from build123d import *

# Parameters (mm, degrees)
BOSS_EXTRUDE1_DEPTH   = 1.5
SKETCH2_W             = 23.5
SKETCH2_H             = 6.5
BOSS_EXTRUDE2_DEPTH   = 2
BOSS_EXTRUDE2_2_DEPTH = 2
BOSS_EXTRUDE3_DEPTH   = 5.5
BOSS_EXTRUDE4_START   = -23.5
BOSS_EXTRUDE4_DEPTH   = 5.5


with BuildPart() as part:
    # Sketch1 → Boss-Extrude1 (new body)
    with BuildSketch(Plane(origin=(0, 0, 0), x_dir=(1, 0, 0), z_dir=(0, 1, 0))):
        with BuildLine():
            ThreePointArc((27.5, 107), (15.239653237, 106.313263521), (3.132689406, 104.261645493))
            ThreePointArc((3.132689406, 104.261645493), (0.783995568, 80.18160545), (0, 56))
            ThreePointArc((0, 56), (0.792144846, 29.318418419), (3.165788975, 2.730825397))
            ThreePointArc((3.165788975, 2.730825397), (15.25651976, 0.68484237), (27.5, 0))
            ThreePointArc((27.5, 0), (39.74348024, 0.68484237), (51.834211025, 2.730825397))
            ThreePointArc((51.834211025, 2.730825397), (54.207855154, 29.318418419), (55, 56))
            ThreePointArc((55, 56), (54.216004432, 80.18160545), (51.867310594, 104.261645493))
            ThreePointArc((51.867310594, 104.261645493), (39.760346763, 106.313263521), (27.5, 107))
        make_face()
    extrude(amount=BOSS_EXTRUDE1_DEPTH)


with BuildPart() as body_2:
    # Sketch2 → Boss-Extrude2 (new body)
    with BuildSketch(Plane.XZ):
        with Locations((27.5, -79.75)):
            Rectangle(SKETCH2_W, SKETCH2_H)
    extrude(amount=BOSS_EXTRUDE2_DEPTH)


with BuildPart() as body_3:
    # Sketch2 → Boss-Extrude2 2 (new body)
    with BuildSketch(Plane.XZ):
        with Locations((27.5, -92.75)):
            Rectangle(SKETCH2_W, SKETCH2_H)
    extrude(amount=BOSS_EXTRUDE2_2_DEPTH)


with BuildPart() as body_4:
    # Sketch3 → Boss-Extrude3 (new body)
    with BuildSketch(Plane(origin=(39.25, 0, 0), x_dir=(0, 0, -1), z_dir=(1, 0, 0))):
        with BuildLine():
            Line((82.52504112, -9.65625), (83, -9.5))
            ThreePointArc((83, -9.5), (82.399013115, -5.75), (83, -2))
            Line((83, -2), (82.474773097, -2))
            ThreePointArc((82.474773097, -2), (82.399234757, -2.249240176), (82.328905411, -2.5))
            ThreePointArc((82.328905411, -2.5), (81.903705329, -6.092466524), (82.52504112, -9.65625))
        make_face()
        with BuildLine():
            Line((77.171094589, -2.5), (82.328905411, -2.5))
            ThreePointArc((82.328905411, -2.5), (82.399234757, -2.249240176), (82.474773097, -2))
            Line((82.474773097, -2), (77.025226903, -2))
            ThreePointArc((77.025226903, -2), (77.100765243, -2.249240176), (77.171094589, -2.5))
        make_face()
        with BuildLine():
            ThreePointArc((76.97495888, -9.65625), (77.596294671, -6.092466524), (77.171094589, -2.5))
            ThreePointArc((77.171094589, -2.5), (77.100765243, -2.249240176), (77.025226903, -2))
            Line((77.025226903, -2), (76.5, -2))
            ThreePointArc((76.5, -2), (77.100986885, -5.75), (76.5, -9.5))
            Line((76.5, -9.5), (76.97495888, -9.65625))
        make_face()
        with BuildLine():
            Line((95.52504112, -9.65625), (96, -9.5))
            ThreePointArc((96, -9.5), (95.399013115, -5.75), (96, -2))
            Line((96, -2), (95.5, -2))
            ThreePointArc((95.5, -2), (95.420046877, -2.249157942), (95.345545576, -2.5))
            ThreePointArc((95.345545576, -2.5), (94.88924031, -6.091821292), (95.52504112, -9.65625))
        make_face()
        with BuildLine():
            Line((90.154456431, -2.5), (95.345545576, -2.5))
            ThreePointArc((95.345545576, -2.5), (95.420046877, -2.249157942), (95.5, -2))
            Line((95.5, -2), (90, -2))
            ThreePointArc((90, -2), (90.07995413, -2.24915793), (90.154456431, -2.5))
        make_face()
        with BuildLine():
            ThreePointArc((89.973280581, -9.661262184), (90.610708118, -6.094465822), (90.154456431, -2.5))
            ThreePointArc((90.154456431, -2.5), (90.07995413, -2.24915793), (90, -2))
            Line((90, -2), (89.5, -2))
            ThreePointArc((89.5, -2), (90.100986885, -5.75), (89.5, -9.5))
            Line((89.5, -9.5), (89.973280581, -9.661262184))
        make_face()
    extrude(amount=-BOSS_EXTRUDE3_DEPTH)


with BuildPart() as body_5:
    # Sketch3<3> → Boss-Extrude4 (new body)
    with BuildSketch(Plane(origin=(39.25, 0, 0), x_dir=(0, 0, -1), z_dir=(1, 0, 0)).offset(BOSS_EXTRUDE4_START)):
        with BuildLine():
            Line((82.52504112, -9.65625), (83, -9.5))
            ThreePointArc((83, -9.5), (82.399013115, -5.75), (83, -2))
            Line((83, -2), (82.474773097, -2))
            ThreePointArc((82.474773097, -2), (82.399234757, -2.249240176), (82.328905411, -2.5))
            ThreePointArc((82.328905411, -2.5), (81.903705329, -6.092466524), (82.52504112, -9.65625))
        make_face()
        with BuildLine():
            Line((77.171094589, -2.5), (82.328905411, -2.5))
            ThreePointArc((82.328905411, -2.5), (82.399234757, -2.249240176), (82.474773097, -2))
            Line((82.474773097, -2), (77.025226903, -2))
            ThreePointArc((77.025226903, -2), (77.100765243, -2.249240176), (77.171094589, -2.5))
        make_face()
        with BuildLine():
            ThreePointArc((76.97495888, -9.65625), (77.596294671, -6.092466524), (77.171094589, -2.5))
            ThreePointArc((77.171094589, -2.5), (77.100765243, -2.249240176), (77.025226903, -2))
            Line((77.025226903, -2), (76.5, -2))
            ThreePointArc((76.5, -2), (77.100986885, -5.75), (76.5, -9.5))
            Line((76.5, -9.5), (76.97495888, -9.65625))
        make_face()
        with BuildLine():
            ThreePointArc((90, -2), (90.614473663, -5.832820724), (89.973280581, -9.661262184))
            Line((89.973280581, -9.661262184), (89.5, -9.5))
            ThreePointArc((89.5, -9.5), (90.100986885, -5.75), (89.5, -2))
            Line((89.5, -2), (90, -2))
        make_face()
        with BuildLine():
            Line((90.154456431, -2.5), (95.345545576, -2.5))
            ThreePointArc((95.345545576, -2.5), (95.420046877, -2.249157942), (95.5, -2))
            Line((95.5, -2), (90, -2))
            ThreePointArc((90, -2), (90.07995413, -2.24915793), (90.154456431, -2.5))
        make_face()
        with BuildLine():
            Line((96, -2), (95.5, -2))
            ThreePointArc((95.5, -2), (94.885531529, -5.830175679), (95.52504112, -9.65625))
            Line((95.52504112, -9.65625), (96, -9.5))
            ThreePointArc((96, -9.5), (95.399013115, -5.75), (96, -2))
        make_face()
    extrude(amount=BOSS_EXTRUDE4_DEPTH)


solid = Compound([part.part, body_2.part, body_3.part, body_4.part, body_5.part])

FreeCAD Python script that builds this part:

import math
import FreeCAD as App
import Part
import Sketcher
from FreeCAD import Vector
Q = App.Units.Quantity


def add_polygon(sketch, points):
    """Adds a closed chain of lines whose ends are joined by coincident constraints."""
    first, n = sketch.GeometryCount, len(points)
    for a, b in zip(points, points[1:] + points[:1]):
        sketch.addGeometry(Part.LineSegment(App.Vector(*a, 0), App.Vector(*b, 0)), False)
    for i in range(n):
        sketch.addConstraint(Sketcher.Constraint("Coincident", first + i, 2, first + (i + 1) % n, 1))

doc = App.newDocument("Part")
params = doc.addObject("Spreadsheet::Sheet", "Params")
for row, (alias, value) in enumerate([
    ("sketch1_radius", "449.75 mm"),
    ("pad1_length", "1.5 mm"),
    ("sketch2_width", "23.5 mm"),
    ("sketch2_height", "6.5 mm"),
    ("pad2_length", "2 mm"),
    ("sketch3_width", "23.5 mm"),
    ("sketch3_height", "6.5 mm"),
    ("pad3_length", "2 mm"),
    ("sketch4_radius", "12 mm"),
    ("sketch4_radius2", "12.5 mm"),
    ("sketch4_height", "6.5 mm"),
    ("pad4_length", "5.5 mm"),
    ("sketch5_radius", "12 mm"),
    ("sketch5_radius2", "12.5 mm"),
    ("sketch5_height", "6.5 mm"),
    ("pad5_length", "5.5 mm"),
], start=1):
    params.set(f"A{row}", alias)
    params.set(f"B{row}", "=" + value)
    params.setAlias(f"B{row}", alias)

body = doc.addObject("PartDesign::Body", "Body")

# Sketch on XZ plane
sketch1 = body.newObject("Sketcher::SketchObject", "Sketch")
sketch1.AttachmentSupport = (doc.getObject("XZ_Plane"), [""])
sketch1.MapMode = "FlatFace"
sketch1.addGeometry([
    Part.ArcOfCircle(Part.Circle(Vector(28, 3, 0), Vector(0, 0, 1), 110), math.radians(-102.82), math.radians(-90)),  # 0
    Part.ArcOfCircle(Part.Circle(Vector(373, -56, 0), Vector(0, 0, 1), 373), math.radians(180), math.radians(187.43)),  # 1
    Part.ArcOfCircle(Part.Circle(Vector(450, -56, 0), Vector(0, 0, 1), 450), math.radians(173.2), math.radians(180)),  # 2
    Part.ArcOfCircle(Part.Circle(Vector(28, -110, 0), Vector(0, 0, 1), 110), math.radians(90), math.radians(102.81)),  # 3
    Part.ArcOfCircle(Part.Circle(Vector(27, -110, 0), Vector(0, 0, 1), 110), math.radians(77.19), math.radians(90)),  # 4
    Part.ArcOfCircle(Part.Circle(Vector(-395, -56, 0), Vector(0, 0, 1), 450), math.radians(0), math.radians(6.8)),  # 5
    Part.ArcOfCircle(Part.Circle(Vector(-318, -56, 0), Vector(0, 0, 1), 373), math.radians(-7.43), math.radians(0)),  # 6
    Part.ArcOfCircle(Part.Circle(Vector(28, 3, 0), Vector(0, 0, 1), 110), math.radians(-90), math.radians(-77.18)),  # 7
], False)
sketch1.addConstraint([
    Sketcher.Constraint("Coincident", 0, 1, 1, 2),
    Sketcher.Constraint("Tangent", 1, 1, 2, 2),
    Sketcher.Constraint("Coincident", 2, 1, 3, 2),
    Sketcher.Constraint("Tangent", 3, 1, 4, 2),
    Sketcher.Constraint("Coincident", 4, 1, 5, 2),
    Sketcher.Constraint("Tangent", 5, 1, 6, 2),
    Sketcher.Constraint("Coincident", 6, 1, 7, 2),
    Sketcher.Constraint("Tangent", 7, 1, 0, 2),
    Sketcher.Constraint("Equal", 0, 3),
    Sketcher.Constraint("Equal", 3, 4),
    Sketcher.Constraint("Equal", 2, 5),
    Sketcher.Constraint("Equal", 1, 6),
    Sketcher.Constraint("Equal", 4, 7),
    Sketcher.Constraint("PointOnObject", 1, 1, -2),
    Sketcher.Constraint("PointOnObject", 3, 1, -1),
    Sketcher.Constraint("Horizontal", 1, 3, 2, 3),
    Sketcher.Constraint("Horizontal", 2, 3, 5, 3),
    Sketcher.Constraint("Horizontal", 5, 3, 6, 3),
    Sketcher.Constraint("Vertical", 0, 3, 3, 3),
    Sketcher.Constraint("Vertical", 7, 3, 3, 1),
    Sketcher.Constraint("Vertical", 3, 1, 7, 1),
    Sketcher.Constraint("Radius", 2, Q("449.75 mm")),
    Sketcher.Constraint("DistanceY", 1, 3, -1, 1, Q("56 mm")),
    Sketcher.Constraint("DistanceX", -1, 1, 5, 1, Q("55 mm")),
    Sketcher.Constraint("DistanceY", 7, 1, -1, 1, Q("107 mm")),
    Sketcher.Constraint("DistanceX", -1, 1, 0, 3, Q("27.5 mm")),
    Sketcher.Constraint("Radius", 1, Q("373.321428 mm")),
    Sketcher.Constraint("Radius", 0, Q("109.785714 mm")),
])
sketch1.setExpression("Constraints[21]", "Params.sketch1_radius")
pad1 = body.newObject("PartDesign::Pad", "Pad")
pad1.Profile = sketch1
pad1.setExpression("Length", "Params.pad1_length")
pad1.Reversed = True
body2 = doc.addObject("PartDesign::Body", "Body001")

# Sketch on XZ plane
sketch2 = body2.newObject("Sketcher::SketchObject", "Sketch001")
sketch2.AttachmentSupport = (doc.getObject("XZ_Plane001"), [""])
sketch2.MapMode = "FlatFace"
add_polygon(sketch2, [(16, -76), (16, -83), (39, -83), (39, -76)])  # lines 0-3
sketch2.addConstraint([
    Sketcher.Constraint("Vertical", 0),
    Sketcher.Constraint("Horizontal", 1),
    Sketcher.Constraint("Vertical", 2),
    Sketcher.Constraint("Horizontal", 3),
    Sketcher.Constraint("DistanceX", 1, 1, 1, 2, Q("23.5 mm")),
    Sketcher.Constraint("DistanceY", 0, 2, 0, 1, Q("6.5 mm")),
    Sketcher.Constraint("DistanceY", 0, 2, -1, 1, Q("83 mm")),
    Sketcher.Constraint("DistanceX", -1, 1, 0, 2, Q("15.75 mm")),
])
sketch2.setExpression("Constraints[8]", "Params.sketch2_width")
sketch2.setExpression("Constraints[9]", "Params.sketch2_height")
pad2 = body2.newObject("PartDesign::Pad", "Pad001")
pad2.Profile = sketch2
pad2.setExpression("Length", "Params.pad2_length")
body3 = doc.addObject("PartDesign::Body", "Body002")

# Sketch on XZ plane
sketch3 = body3.newObject("Sketcher::SketchObject", "Sketch002")
sketch3.AttachmentSupport = (doc.getObject("XZ_Plane002"), [""])
sketch3.MapMode = "FlatFace"
add_polygon(sketch3, [(16, -90), (16, -96), (39, -96), (39, -90)])  # lines 0-3
sketch3.addConstraint([
    Sketcher.Constraint("Vertical", 0),
    Sketcher.Constraint("Horizontal", 1),
    Sketcher.Constraint("Vertical", 2),
    Sketcher.Constraint("Horizontal", 3),
    Sketcher.Constraint("DistanceX", 1, 1, 1, 2, Q("23.5 mm")),
    Sketcher.Constraint("DistanceY", 0, 2, 0, 1, Q("6.5 mm")),
    Sketcher.Constraint("DistanceY", 0, 2, -1, 1, Q("96 mm")),
    Sketcher.Constraint("DistanceX", -1, 1, 0, 2, Q("15.75 mm")),
])
sketch3.setExpression("Constraints[8]", "Params.sketch3_width")
sketch3.setExpression("Constraints[9]", "Params.sketch3_height")
pad3 = body3.newObject("PartDesign::Pad", "Pad002")
pad3.Profile = sketch3
pad3.setExpression("Length", "Params.pad3_length")
body4 = doc.addObject("PartDesign::Body", "Body003")
body4.AllowCompound = True

# Sketch on YZ plane
sketch4 = body4.newObject("Sketcher::SketchObject", "Sketch003")
sketch4.AttachmentSupport = (doc.getObject("YZ_Plane003"), [""])
sketch4.MapMode = "FlatFace"
sketch4.AttachmentOffset = App.Placement(Vector(0, 0, 39.25), App.Rotation())
sketch4.addGeometry([
    Part.LineSegment(Vector(-9.7, -82.5, 0), Vector(-9.5, -83, 0)),  # 0
    Part.ArcOfCircle(Part.Circle(Vector(-5.8, -94.4, 0), Vector(0, 0, 1), 12), math.radians(72), math.radians(108)),  # 1
    Part.LineSegment(Vector(-2, -83, 0), Vector(-2, -76.5, 0)),  # 2
    Part.ArcOfCircle(Part.Circle(Vector(-5.8, -65.1, 0), Vector(0, 0, 1), 12), math.radians(-108), math.radians(-72)),  # 3
    Part.LineSegment(Vector(-9.5, -76.5, 0), Vector(-9.7, -77, 0)),  # 4
    Part.ArcOfCircle(Part.Circle(Vector(-5.8, -65.1, 0), Vector(0, 0, 1), 12.5), math.radians(-108), math.radians(-75)),  # 5
    Part.LineSegment(Vector(-2.5, -77.2, 0), Vector(-2.5, -82.3, 0)),  # 6
    Part.ArcOfCircle(Part.Circle(Vector(-5.8, -94.4, 0), Vector(0, 0, 1), 12.5), math.radians(75), math.radians(108)),  # 7
    Part.LineSegment(Vector(-9.7, -95.5, 0), Vector(-9.5, -96, 0)),  # 8
    Part.ArcOfCircle(Part.Circle(Vector(-5.8, -107.4, 0), Vector(0, 0, 1), 12), math.radians(72), math.radians(108)),  # 9
    Part.LineSegment(Vector(-2, -96, 0), Vector(-2, -89.5, 0)),  # 10
    Part.ArcOfCircle(Part.Circle(Vector(-5.8, -78.1, 0), Vector(0, 0, 1), 12), math.radians(-108), math.radians(-72)),  # 11
    Part.LineSegment(Vector(-9.5, -89.5, 0), Vector(-9.7, -90, 0)),  # 12
    Part.ArcOfCircle(Part.Circle(Vector(-5.8, -78.6, 0), Vector(0, 0, 1), 12), math.radians(-109), math.radians(-74)),  # 13
    Part.LineSegment(Vector(-2.5, -90.2, 0), Vector(-2.5, -95.3, 0)),  # 14
    Part.ArcOfCircle(Part.Circle(Vector(-5.8, -106.9, 0), Vector(0, 0, 1), 12), math.radians(74), math.radians(109)),  # 15
], False)
sketch4.addConstraint([
    Sketcher.Constraint("Coincident", 0, 2, 1, 2),
    Sketcher.Constraint("Coincident", 1, 1, 2, 1),
    Sketcher.Constraint("Coincident", 2, 2, 3, 2),
    Sketcher.Constraint("Coincident", 3, 1, 4, 1),
    Sketcher.Constraint("Coincident", 4, 2, 5, 1),
    Sketcher.Constraint("Coincident", 5, 2, 6, 1),
    Sketcher.Constraint("Coincident", 6, 2, 7, 1),
    Sketcher.Constraint("Coincident", 7, 2, 0, 1),
    Sketcher.Constraint("Coincident", 8, 2, 9, 2),
    Sketcher.Constraint("Coincident", 9, 1, 10, 1),
    Sketcher.Constraint("Coincident", 10, 2, 11, 2),
    Sketcher.Constraint("Coincident", 11, 1, 12, 1),
    Sketcher.Constraint("Coincident", 12, 2, 13, 1),
    Sketcher.Constraint("Coincident", 13, 2, 14, 1),
    Sketcher.Constraint("Coincident", 14, 2, 15, 1),
    Sketcher.Constraint("Coincident", 15, 2, 8, 1),
    Sketcher.Constraint("Vertical", 2),
    Sketcher.Constraint("Vertical", 6),
    Sketcher.Constraint("Vertical", 10),
    Sketcher.Constraint("Vertical", 14),
    Sketcher.Constraint("Coincident", 5, 3, 3, 3),
    Sketcher.Constraint("Coincident", 7, 3, 1, 3),
    Sketcher.Constraint("Equal", 1, 3),
    Sketcher.Constraint("Equal", 5, 7),
    Sketcher.Constraint("Equal", 3, 9),
    Sketcher.Constraint("Equal", 9, 11),
    Sketcher.Constraint("Equal", 11, 13),
    Sketcher.Constraint("Equal", 13, 15),
    Sketcher.Constraint("Parallel", 0, 8),
    Sketcher.Constraint("Horizontal", 0, 2, 1, 1),
    Sketcher.Constraint("Horizontal", 2, 2, 3, 1),
    Sketcher.Constraint("Horizontal", 8, 2, 9, 1),
    Sketcher.Constraint("Horizontal", 10, 2, 11, 1),
    Sketcher.Constraint("Vertical", 1, 3, 3, 3),
    Sketcher.Constraint("Vertical", 7, 3, 9, 3),
    Sketcher.Constraint("Vertical", 9, 3, 11, 3),
    Sketcher.Constraint("Vertical", 4, 2, 7, 2),
    Sketcher.Constraint("Vertical", 3, 1, 8, 2),
    Sketcher.Constraint("Vertical", 6, 2, 13, 2),
    Sketcher.Constraint("Vertical", 7, 2, 15, 2),
    Sketcher.Constraint("Equal", 2, 10),
    Sketcher.Constraint("Equal", 8, 12),
    Sketcher.Constraint("Radius", 1, Q("12 mm")),
    Sketcher.Constraint("Radius", 5, Q("12.5 mm")),
    Sketcher.Constraint("DistanceY", 2, 1, 2, 2, Q("6.5 mm")),
    Sketcher.Constraint("DistanceY", 0, 2, -1, 1, Q("83 mm")),
    Sketcher.Constraint("DistanceX", 1, 1, -1, 1, Q("2 mm")),
    Sketcher.Constraint("DistanceY", 8, 2, -1, 1, Q("96 mm")),
    Sketcher.Constraint("DistanceX", 3, 1, 5, 2, Q("7 mm")),
    Sketcher.Constraint("DistanceX", 0, 2, -1, 1, Q("9.5 mm")),
    Sketcher.Constraint("DistanceY", 14, 2, 14, 1, Q("5.191089 mm")),
    Sketcher.Constraint("DistanceX", 13, 3, -1, 1, Q("5.79097 mm")),
    Sketcher.Constraint("DistanceX", 4, 2, -1, 1, Q("9.65625 mm")),
    Sketcher.Constraint("DistanceY", 12, 2, -1, 1, Q("89.973281 mm")),
])
sketch4.setExpression("Constraints[42]", "Params.sketch4_radius")
sketch4.setExpression("Constraints[43]", "Params.sketch4_radius2")
sketch4.setExpression("Constraints[44]", "Params.sketch4_height")
pad4 = body4.newObject("PartDesign::Pad", "Pad003")
pad4.Profile = sketch4
pad4.setExpression("Length", "Params.pad4_length")
pad4.Reversed = True
body5 = doc.addObject("PartDesign::Body", "Body004")
body5.AllowCompound = True

# Sketch on YZ plane
sketch5 = body5.newObject("Sketcher::SketchObject", "Sketch004")
sketch5.AttachmentSupport = (doc.getObject("YZ_Plane004"), [""])
sketch5.MapMode = "FlatFace"
sketch5.AttachmentOffset = App.Placement(Vector(0, 0, 15.75), App.Rotation())
sketch5.addGeometry([
    Part.LineSegment(Vector(-9.7, -82.5, 0), Vector(-9.5, -83, 0)),  # 0
    Part.ArcOfCircle(Part.Circle(Vector(-5.8, -94.4, 0), Vector(0, 0, 1), 12), math.radians(72), math.radians(108)),  # 1
    Part.LineSegment(Vector(-2, -83, 0), Vector(-2, -76.5, 0)),  # 2
    Part.ArcOfCircle(Part.Circle(Vector(-5.8, -65.1, 0), Vector(0, 0, 1), 12), math.radians(-108), math.radians(-72)),  # 3
    Part.LineSegment(Vector(-9.5, -76.5, 0), Vector(-9.7, -77, 0)),  # 4
    Part.ArcOfCircle(Part.Circle(Vector(-5.8, -65.1, 0), Vector(0, 0, 1), 12.5), math.radians(-108), math.radians(-75)),  # 5
    Part.LineSegment(Vector(-2.5, -77.2, 0), Vector(-2.5, -82.3, 0)),  # 6
    Part.ArcOfCircle(Part.Circle(Vector(-5.8, -94.4, 0), Vector(0, 0, 1), 12.5), math.radians(75), math.radians(108)),  # 7
    Part.ArcOfCircle(Part.Circle(Vector(-5.8, -78.6, 0), Vector(0, 0, 1), 12), math.radians(-109), math.radians(-74)),  # 8
    Part.LineSegment(Vector(-2.5, -90.2, 0), Vector(-2.5, -95.3, 0)),  # 9
    Part.ArcOfCircle(Part.Circle(Vector(-5.8, -106.9, 0), Vector(0, 0, 1), 12), math.radians(74), math.radians(109)),  # 10
    Part.LineSegment(Vector(-9.7, -95.5, 0), Vector(-9.5, -96, 0)),  # 11
    Part.ArcOfCircle(Part.Circle(Vector(-5.8, -107.4, 0), Vector(0, 0, 1), 12), math.radians(72), math.radians(108)),  # 12
    Part.LineSegment(Vector(-2, -96, 0), Vector(-2, -89.5, 0)),  # 13
    Part.ArcOfCircle(Part.Circle(Vector(-5.8, -78.1, 0), Vector(0, 0, 1), 12), math.radians(-108), math.radians(-72)),  # 14
    Part.LineSegment(Vector(-9.5, -89.5, 0), Vector(-9.7, -90, 0)),  # 15
], False)
sketch5.addConstraint([
    Sketcher.Constraint("Coincident", 0, 2, 1, 2),
    Sketcher.Constraint("Coincident", 1, 1, 2, 1),
    Sketcher.Constraint("Coincident", 2, 2, 3, 2),
    Sketcher.Constraint("Coincident", 3, 1, 4, 1),
    Sketcher.Constraint("Coincident", 4, 2, 5, 1),
    Sketcher.Constraint("Coincident", 5, 2, 6, 1),
    Sketcher.Constraint("Coincident", 6, 2, 7, 1),
    Sketcher.Constraint("Coincident", 7, 2, 0, 1),
    Sketcher.Constraint("Coincident", 8, 2, 9, 1),
    Sketcher.Constraint("Coincident", 9, 2, 10, 1),
    Sketcher.Constraint("Coincident", 10, 2, 11, 1),
    Sketcher.Constraint("Coincident", 11, 2, 12, 2),
    Sketcher.Constraint("Coincident", 12, 1, 13, 1),
    Sketcher.Constraint("Coincident", 13, 2, 14, 2),
    Sketcher.Constraint("Coincident", 14, 1, 15, 1),
    Sketcher.Constraint("Coincident", 15, 2, 8, 1),
    Sketcher.Constraint("Vertical", 2),
    Sketcher.Constraint("Vertical", 6),
    Sketcher.Constraint("Vertical", 9),
    Sketcher.Constraint("Vertical", 13),
    Sketcher.Constraint("Coincident", 5, 3, 3, 3),
    Sketcher.Constraint("Coincident", 7, 3, 1, 3),
    Sketcher.Constraint("Equal", 1, 3),
    Sketcher.Constraint("Equal", 5, 7),
    Sketcher.Constraint("Equal", 3, 8),
    Sketcher.Constraint("Equal", 8, 10),
    Sketcher.Constraint("Equal", 10, 12),
    Sketcher.Constraint("Equal", 12, 14),
    Sketcher.Constraint("Parallel", 0, 11),
    Sketcher.Constraint("Horizontal", 0, 2, 1, 1),
    Sketcher.Constraint("Horizontal", 2, 2, 3, 1),
    Sketcher.Constraint("Horizontal", 11, 2, 12, 1),
    Sketcher.Constraint("Horizontal", 13, 2, 14, 1),
    Sketcher.Constraint("Vertical", 1, 3, 3, 3),
    Sketcher.Constraint("Vertical", 7, 3, 12, 3),
    Sketcher.Constraint("Vertical", 12, 3, 14, 3),
    Sketcher.Constraint("Vertical", 4, 2, 7, 2),
    Sketcher.Constraint("Vertical", 6, 2, 8, 2),
    Sketcher.Constraint("Vertical", 7, 2, 10, 2),
    Sketcher.Constraint("Vertical", 3, 1, 11, 2),
    Sketcher.Constraint("Equal", 2, 13),
    Sketcher.Constraint("Equal", 11, 15),
    Sketcher.Constraint("Radius", 1, Q("12 mm")),
    Sketcher.Constraint("Radius", 5, Q("12.5 mm")),
    Sketcher.Constraint("DistanceY", 2, 1, 2, 2, Q("6.5 mm")),
    Sketcher.Constraint("DistanceY", 0, 2, -1, 1, Q("83 mm")),
    Sketcher.Constraint("DistanceX", 1, 1, -1, 1, Q("2 mm")),
    Sketcher.Constraint("DistanceY", 11, 2, -1, 1, Q("96 mm")),
    Sketcher.Constraint("DistanceX", 3, 1, 5, 2, Q("7 mm")),
    Sketcher.Constraint("DistanceX", 0, 2, -1, 1, Q("9.5 mm")),
    Sketcher.Constraint("DistanceY", 9, 2, 9, 1, Q("5.191089 mm")),
    Sketcher.Constraint("DistanceX", 8, 3, -1, 1, Q("5.79097 mm")),
    Sketcher.Constraint("DistanceX", 4, 2, -1, 1, Q("9.65625 mm")),
    Sketcher.Constraint("DistanceY", 15, 2, -1, 1, Q("89.973281 mm")),
])
sketch5.setExpression("Constraints[42]", "Params.sketch5_radius")
sketch5.setExpression("Constraints[43]", "Params.sketch5_radius2")
sketch5.setExpression("Constraints[44]", "Params.sketch5_height")
pad5 = body5.newObject("PartDesign::Pad", "Pad004")
pad5.Profile = sketch5
pad5.setExpression("Length", "Params.pad5_length")

doc.recompute()
